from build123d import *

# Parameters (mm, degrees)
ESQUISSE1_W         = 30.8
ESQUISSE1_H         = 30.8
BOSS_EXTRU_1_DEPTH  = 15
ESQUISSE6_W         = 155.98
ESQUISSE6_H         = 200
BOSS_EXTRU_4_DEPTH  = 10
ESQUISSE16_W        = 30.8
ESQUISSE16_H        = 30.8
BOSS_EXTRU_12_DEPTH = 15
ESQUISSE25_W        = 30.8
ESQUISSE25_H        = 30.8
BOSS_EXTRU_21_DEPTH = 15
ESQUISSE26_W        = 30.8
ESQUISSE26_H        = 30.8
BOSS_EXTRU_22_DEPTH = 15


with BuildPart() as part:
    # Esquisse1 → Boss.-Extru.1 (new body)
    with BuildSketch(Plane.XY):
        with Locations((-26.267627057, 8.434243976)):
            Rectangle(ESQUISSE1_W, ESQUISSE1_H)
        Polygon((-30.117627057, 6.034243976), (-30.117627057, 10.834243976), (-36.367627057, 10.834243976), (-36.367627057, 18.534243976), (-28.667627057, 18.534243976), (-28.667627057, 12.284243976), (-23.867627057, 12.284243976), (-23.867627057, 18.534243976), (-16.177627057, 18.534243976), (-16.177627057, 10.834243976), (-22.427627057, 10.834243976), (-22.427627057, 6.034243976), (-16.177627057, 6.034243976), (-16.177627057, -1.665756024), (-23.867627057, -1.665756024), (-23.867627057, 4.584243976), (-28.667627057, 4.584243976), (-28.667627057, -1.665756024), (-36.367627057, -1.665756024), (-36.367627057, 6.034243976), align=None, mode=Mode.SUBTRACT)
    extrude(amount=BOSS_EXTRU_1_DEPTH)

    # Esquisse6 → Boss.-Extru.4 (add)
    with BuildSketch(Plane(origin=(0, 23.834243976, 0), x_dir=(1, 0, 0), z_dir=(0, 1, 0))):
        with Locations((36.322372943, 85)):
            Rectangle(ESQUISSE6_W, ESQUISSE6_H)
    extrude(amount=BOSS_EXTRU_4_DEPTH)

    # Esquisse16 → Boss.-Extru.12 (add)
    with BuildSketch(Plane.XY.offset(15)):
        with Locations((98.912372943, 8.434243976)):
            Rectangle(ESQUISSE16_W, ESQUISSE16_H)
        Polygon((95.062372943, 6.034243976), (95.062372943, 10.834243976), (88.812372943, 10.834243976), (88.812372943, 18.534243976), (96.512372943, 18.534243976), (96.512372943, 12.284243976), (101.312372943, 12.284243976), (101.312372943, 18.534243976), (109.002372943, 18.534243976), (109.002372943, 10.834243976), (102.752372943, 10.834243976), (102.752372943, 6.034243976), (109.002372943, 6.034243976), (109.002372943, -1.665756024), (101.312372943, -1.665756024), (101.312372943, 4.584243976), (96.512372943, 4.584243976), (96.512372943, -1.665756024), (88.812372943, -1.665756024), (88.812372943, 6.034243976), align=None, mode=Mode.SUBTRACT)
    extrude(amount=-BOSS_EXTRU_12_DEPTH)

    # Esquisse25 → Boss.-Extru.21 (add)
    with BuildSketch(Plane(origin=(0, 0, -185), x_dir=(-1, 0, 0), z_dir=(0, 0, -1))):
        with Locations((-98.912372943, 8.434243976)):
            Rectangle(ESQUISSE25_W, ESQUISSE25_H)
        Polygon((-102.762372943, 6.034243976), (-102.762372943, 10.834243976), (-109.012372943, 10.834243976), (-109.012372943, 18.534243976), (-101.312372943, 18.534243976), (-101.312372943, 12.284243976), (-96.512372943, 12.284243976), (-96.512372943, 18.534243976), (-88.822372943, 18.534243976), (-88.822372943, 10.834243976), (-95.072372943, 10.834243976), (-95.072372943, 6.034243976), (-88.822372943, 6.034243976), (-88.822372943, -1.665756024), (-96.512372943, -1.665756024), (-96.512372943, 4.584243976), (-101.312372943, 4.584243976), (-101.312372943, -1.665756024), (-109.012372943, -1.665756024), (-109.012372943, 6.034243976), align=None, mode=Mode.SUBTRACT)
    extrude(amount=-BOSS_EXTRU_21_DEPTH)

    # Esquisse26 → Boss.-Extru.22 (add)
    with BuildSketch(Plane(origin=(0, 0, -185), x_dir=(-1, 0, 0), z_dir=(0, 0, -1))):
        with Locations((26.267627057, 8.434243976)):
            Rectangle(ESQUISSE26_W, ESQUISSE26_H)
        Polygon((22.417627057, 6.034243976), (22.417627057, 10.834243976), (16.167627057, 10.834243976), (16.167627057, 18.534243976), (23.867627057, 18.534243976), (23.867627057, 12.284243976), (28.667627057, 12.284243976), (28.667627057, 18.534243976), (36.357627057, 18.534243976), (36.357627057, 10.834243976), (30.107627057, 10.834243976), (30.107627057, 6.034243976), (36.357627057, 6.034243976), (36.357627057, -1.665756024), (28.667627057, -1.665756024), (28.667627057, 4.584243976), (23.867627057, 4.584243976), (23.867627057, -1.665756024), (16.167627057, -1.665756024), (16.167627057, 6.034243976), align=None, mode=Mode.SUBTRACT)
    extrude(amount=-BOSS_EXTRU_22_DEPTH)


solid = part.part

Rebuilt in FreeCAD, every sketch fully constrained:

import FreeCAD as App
import Part
import Sketcher
from FreeCAD import Vector


def add_polygon(sketch, points):
    """Adds a closed chain of lines whose ends are joined by coincident constraints."""
    first, n = sketch.GeometryCount, len(points)
    for a, b in zip(points, points[1:] + points[:1]):
        sketch.addGeometry(Part.LineSegment(App.Vector(*a, 0), App.Vector(*b, 0)), False)
    for i in range(n):
        sketch.addConstraint(Sketcher.Constraint("Coincident", first + i, 2, first + (i + 1) % n, 1))

doc = App.newDocument("Part")
body = doc.addObject("PartDesign::Body", "Body")

# Sketch on XY plane
sketch1 = doc.addObject("Sketcher::SketchObject", "Sketch")
body.addObject(sketch1)
sketch1.AttachmentSupport = (doc.XY_Plane, [""])
sketch1.MapMode = "FlatFace"
add_polygon(sketch1, [(-41.7, 23.8), (-41.7, -7), (-10.9, -7), (-10.9, 23.8)])  # lines 0-3
add_polygon(sketch1, [(-36.4, 6), (-30.1, 6), (-30.1, 10.8), (-36.4, 10.8), (-36.4, 18.5), (-28.7, 18.5), (-28.7, 12.3), (-23.9, 12.3), (-23.9, 18.5), (-16.2, 18.5), (-16.2, 10.8), (-22.4, 10.8), (-22.4, 6), (-16.2, 6), (-16.2, -1.7), (-23.9, -1.7), (-23.9, 4.6), (-28.7, 4.6), (-28.7, -1.7), (-36.4, -1.7)])  # lines 4-23
sketch1.addConstraint(Sketcher.Constraint("Vertical", 0))
sketch1.addConstraint(Sketcher.Constraint("Horizontal", 1))
sketch1.addConstraint(Sketcher.Constraint("Vertical", 2))
sketch1.addConstraint(Sketcher.Constraint("Horizontal", 3))
sketch1.addConstraint(Sketcher.Constraint("Horizontal", 4))
sketch1.addConstraint(Sketcher.Constraint("Vertical", 5))
sketch1.addConstraint(Sketcher.Constraint("Horizontal", 6))
sketch1.addConstraint(Sketcher.Constraint("Vertical", 7))
sketch1.addConstraint(Sketcher.Constraint("Horizontal", 8))
sketch1.addConstraint(Sketcher.Constraint("Vertical", 9))
sketch1.addConstraint(Sketcher.Constraint("Horizontal", 10))
sketch1.addConstraint(Sketcher.Constraint("Vertical", 11))
sketch1.addConstraint(Sketcher.Constraint("Horizontal", 12))
sketch1.addConstraint(Sketcher.Constraint("Vertical", 13))
sketch1.addConstraint(Sketcher.Constraint("Horizontal", 14))
sketch1.addConstraint(Sketcher.Constraint("Vertical", 15))
sketch1.addConstraint(Sketcher.Constraint("Horizontal", 16))
sketch1.addConstraint(Sketcher.Constraint("Vertical", 17))
sketch1.addConstraint(Sketcher.Constraint("Horizontal", 18))
sketch1.addConstraint(Sketcher.Constraint("Vertical", 19))
sketch1.addConstraint(Sketcher.Constraint("Horizontal", 20))
sketch1.addConstraint(Sketcher.Constraint("Vertical", 21))
sketch1.addConstraint(Sketcher.Constraint("Horizontal", 22))
sketch1.addConstraint(Sketcher.Constraint("Vertical", 23))
sketch1.addConstraint(Sketcher.Constraint("Horizontal", 8, 2, 11, 2))
sketch1.addConstraint(Sketcher.Constraint("Horizontal", 6, 2, 13, 2))
sketch1.addConstraint(Sketcher.Constraint("Horizontal", 4, 2, 15, 2))
sketch1.addConstraint(Sketcher.Constraint("Horizontal", 18, 2, 21, 2))
sketch1.addConstraint(Sketcher.Constraint("Vertical", 13, 2, 16, 2))
sketch1.addConstraint(Sketcher.Constraint("Vertical", 11, 2, 18, 2))
sketch1.addConstraint(Sketcher.Constraint("Vertical", 9, 2, 20, 2))
sketch1.addConstraint(Sketcher.Constraint("Vertical", 7, 2, 22, 2))
sketch1.addConstraint(Sketcher.Constraint("Equal", 6, 14))
sketch1.addConstraint(Sketcher.Constraint("Equal", 3, 0))
sketch1.addConstraint(Sketcher.Constraint("Equal", 20, 5))
sketch1.addConstraint(Sketcher.Constraint("Equal", 22, 7))
sketch1.addConstraint(Sketcher.Constraint("Equal", 16, 9))
sketch1.addConstraint(Sketcher.Constraint("Equal", 13, 17))
sketch1.addConstraint(Sketcher.Constraint("Equal", 11, 19))
sketch1.addConstraint(Sketcher.Constraint("DistanceX", 1, 1, 1, 2, 30.8))
sketch1.addConstraint(Sketcher.Constraint("DistanceX", 8, 1, 8, 2, 7.7))
sketch1.addConstraint(Sketcher.Constraint("DistanceX", 10, 1, 10, 2, 4.8))
sketch1.addConstraint(Sketcher.Constraint("DistanceY", 0, 2, 4, 2, 13.0))
sketch1.addConstraint(Sketcher.Constraint("DistanceX", 3, 2, 8, 2, 13.0))
sketch1.addConstraint(Sketcher.Constraint("DistanceX", 4, 1, 4, 2, 6.25))
sketch1.addConstraint(Sketcher.Constraint("DistanceX", 12, 1, 12, 2, 7.69))
sketch1.addConstraint(Sketcher.Constraint("DistanceX", 0, 2, -1, 1, 41.667627))
sketch1.addConstraint(Sketcher.Constraint("DistanceY", 0, 2, -1, 1, 6.965756))
pad1 = doc.addObject("PartDesign::Pad", "Pad")
body.addObject(pad1)
pad1.Profile = sketch1
pad1.Length = 15

# Sketch on XZ plane
sketch2 = doc.addObject("Sketcher::SketchObject", "Sketch001")
body.addObject(sketch2)
sketch2.AttachmentSupport = (doc.XZ_Plane, [""])
sketch2.MapMode = "FlatFace"
sketch2.AttachmentOffset = App.Placement(Vector(0, 0, -23.834244), App.Rotation())
add_polygon(sketch2, [(-42, -185), (-42, 15), (114, 15), (114, -185)])  # lines 0-3
sketch2.addConstraint(Sketcher.Constraint("Vertical", 0))
sketch2.addConstraint(Sketcher.Constraint("Horizontal", 1))
sketch2.addConstraint(Sketcher.Constraint("Vertical", 2))
sketch2.addConstraint(Sketcher.Constraint("Horizontal", 3))
sketch2.addConstraint(Sketcher.Constraint("DistanceY", 0, 1, 0, 2, 200.0))
sketch2.addConstraint(Sketcher.Constraint("DistanceY", -1, 1, 0, 2, 15.0))
sketch2.addConstraint(Sketcher.Constraint("DistanceX", 1, 1, 1, 2, 155.98))
sketch2.addConstraint(Sketcher.Constraint("DistanceX", 0, 2, -1, 1, 41.667627))
pad2 = doc.addObject("PartDesign::Pad", "Pad001")
body.addObject(pad2)
pad2.Profile = sketch2
pad2.Length = 10
pad2.Reversed = True

# Sketch on XY plane
sketch3 = doc.addObject("Sketcher::SketchObject", "Sketch002")
body.addObject(sketch3)
sketch3.AttachmentSupport = (doc.XY_Plane, [""])
sketch3.MapMode = "FlatFace"
sketch3.AttachmentOffset = App.Placement(Vector(0, 0, 15), App.Rotation())
add_polygon(sketch3, [(83.5, 23.8), (83.5, -7), (114.3, -7), (114.3, 23.8)])  # lines 0-3
add_polygon(sketch3, [(88.8, 6), (95.1, 6), (95.1, 10.8), (88.8, 10.8), (88.8, 18.5), (96.5, 18.5), (96.5, 12.3), (101.3, 12.3), (101.3, 18.5), (109, 18.5), (109, 10.8), (102.8, 10.8), (102.8, 6), (109, 6), (109, -1.7), (101.3, -1.7), (101.3, 4.6), (96.5, 4.6), (96.5, -1.7), (88.8, -1.7)])  # lines 4-23
sketch3.addConstraint(Sketcher.Constraint("Vertical", 0))
sketch3.addConstraint(Sketcher.Constraint("Horizontal", 1))
sketch3.addConstraint(Sketcher.Constraint("Vertical", 2))
sketch3.addConstraint(Sketcher.Constraint("Horizontal", 3))
sketch3.addConstraint(Sketcher.Constraint("Horizontal", 4))
sketch3.addConstraint(Sketcher.Constraint("Vertical", 5))
sketch3.addConstraint(Sketcher.Constraint("Horizontal", 6))
sketch3.addConstraint(Sketcher.Constraint("Vertical", 7))
sketch3.addConstraint(Sketcher.Constraint("Horizontal", 8))
sketch3.addConstraint(Sketcher.Constraint("Vertical", 9))
sketch3.addConstraint(Sketcher.Constraint("Horizontal", 10))
sketch3.addConstraint(Sketcher.Constraint("Vertical", 11))
sketch3.addConstraint(Sketcher.Constraint("Horizontal", 12))
sketch3.addConstraint(Sketcher.Constraint("Vertical", 13))
sketch3.addConstraint(Sketcher.Constraint("Horizontal", 14))
sketch3.addConstraint(Sketcher.Constraint("Vertical", 15))
sketch3.addConstraint(Sketcher.Constraint("Horizontal", 16))
sketch3.addConstraint(Sketcher.Constraint("Vertical", 17))
sketch3.addConstraint(Sketcher.Constraint("Horizontal", 18))
sketch3.addConstraint(Sketcher.Constraint("Vertical", 19))
sketch3.addConstraint(Sketcher.Constraint("Horizontal", 20))
sketch3.addConstraint(Sketcher.Constraint("Vertical", 21))
sketch3.addConstraint(Sketcher.Constraint("Horizontal", 22))
sketch3.addConstraint(Sketcher.Constraint("Vertical", 23))
sketch3.addConstraint(Sketcher.Constraint("Horizontal", 8, 2, 11, 2))
sketch3.addConstraint(Sketcher.Constraint("Horizontal", 6, 2, 13, 2))
sketch3.addConstraint(Sketcher.Constraint("Horizontal", 4, 2, 15, 2))
sketch3.addConstraint(Sketcher.Constraint("Horizontal", 18, 2, 21, 2))
sketch3.addConstraint(Sketcher.Constraint("Vertical", 13, 2, 16, 2))
sketch3.addConstraint(Sketcher.Constraint("Vertical", 11, 2, 18, 2))
sketch3.addConstraint(Sketcher.Constraint("Vertical", 9, 2, 20, 2))
sketch3.addConstraint(Sketcher.Constraint("Vertical", 7, 2, 22, 2))
sketch3.addConstraint(Sketcher.Constraint("Equal", 6, 14))
sketch3.addConstraint(Sketcher.Constraint("Equal", 3, 0))
sketch3.addConstraint(Sketcher.Constraint("Equal", 20, 5))
sketch3.addConstraint(Sketcher.Constraint("Equal", 22, 7))
sketch3.addConstraint(Sketcher.Constraint("Equal", 16, 9))
sketch3.addConstraint(Sketcher.Constraint("Equal", 13, 17))
sketch3.addConstraint(Sketcher.Constraint("Equal", 11, 19))
sketch3.addConstraint(Sketcher.Constraint("DistanceX", 1, 1, 1, 2, 30.8))
sketch3.addConstraint(Sketcher.Constraint("DistanceX", 8, 1, 8, 2, 7.7))
sketch3.addConstraint(Sketcher.Constraint("DistanceX", 10, 1, 10, 2, 4.8))
sketch3.addConstraint(Sketcher.Constraint("DistanceY", 0, 2, 4, 2, 13.0))
sketch3.addConstraint(Sketcher.Constraint("DistanceX", 3, 2, 8, 2, 13.0))
sketch3.addConstraint(Sketcher.Constraint("DistanceX", 4, 1, 4, 2, 6.25))
sketch3.addConstraint(Sketcher.Constraint("DistanceX", 12, 1, 12, 2, 7.69))
sketch3.addConstraint(Sketcher.Constraint("DistanceX", -1, 1, 0, 2, 83.512373))
sketch3.addConstraint(Sketcher.Constraint("DistanceY", 0, 2, -1, 1, 6.965756))
pad3 = doc.addObject("PartDesign::Pad", "Pad002")
body.addObject(pad3)
pad3.Profile = sketch3
pad3.Length = 15
pad3.Reversed = True

# Sketch on XY plane
sketch4 = doc.addObject("Sketcher::SketchObject", "Sketch003")
body.addObject(sketch4)
sketch4.AttachmentSupport = (doc.XY_Plane, [""])
sketch4.MapMode = "FlatFace"
sketch4.AttachmentOffset = App.Placement(Vector(0, 0, -185), App.Rotation())
add_polygon(sketch4, [(114.3, 23.8), (114.3, -7), (83.5, -7), (83.5, 23.8)])  # lines 0-3
add_polygon(sketch4, [(109, 6), (102.8, 6), (102.8, 10.8), (109, 10.8), (109, 18.5), (101.3, 18.5), (101.3, 12.3), (96.5, 12.3), (96.5, 18.5), (88.8, 18.5), (88.8, 10.8), (95.1, 10.8), (95.1, 6), (88.8, 6), (88.8, -1.7), (96.5, -1.7), (96.5, 4.6), (101.3, 4.6), (101.3, -1.7), (109, -1.7)])  # lines 4-23
sketch4.addConstraint(Sketcher.Constraint("Vertical", 0))
sketch4.addConstraint(Sketcher.Constraint("Horizontal", 1))
sketch4.addConstraint(Sketcher.Constraint("Vertical", 2))
sketch4.addConstraint(Sketcher.Constraint("Horizontal", 3))
sketch4.addConstraint(Sketcher.Constraint("Horizontal", 4))
sketch4.addConstraint(Sketcher.Constraint("Vertical", 5))
sketch4.addConstraint(Sketcher.Constraint("Horizontal", 6))
sketch4.addConstraint(Sketcher.Constraint("Vertical", 7))
sketch4.addConstraint(Sketcher.Constraint("Horizontal", 8))
sketch4.addConstraint(Sketcher.Constraint("Vertical", 9))
sketch4.addConstraint(Sketcher.Constraint("Horizontal", 10))
sketch4.addConstraint(Sketcher.Constraint("Vertical", 11))
sketch4.addConstraint(Sketcher.Constraint("Horizontal", 12))
sketch4.addConstraint(Sketcher.Constraint("Vertical", 13))
sketch4.addConstraint(Sketcher.Constraint("Horizontal", 14))
sketch4.addConstraint(Sketcher.Constraint("Vertical", 15))
sketch4.addConstraint(Sketcher.Constraint("Horizontal", 16))
sketch4.addConstraint(Sketcher.Constraint("Vertical", 17))
sketch4.addConstraint(Sketcher.Constraint("Horizontal", 18))
sketch4.addConstraint(Sketcher.Constraint("Vertical", 19))
sketch4.addConstraint(Sketcher.Constraint("Horizontal", 20))
sketch4.addConstraint(Sketcher.Constraint("Vertical", 21))
sketch4.addConstraint(Sketcher.Constraint("Horizontal", 22))
sketch4.addConstraint(Sketcher.Constraint("Vertical", 23))
sketch4.addConstraint(Sketcher.Constraint("Horizontal", 8, 2, 11, 2))
sketch4.addConstraint(Sketcher.Constraint("Horizontal", 6, 2, 13, 2))
sketch4.addConstraint(Sketcher.Constraint("Horizontal", 4, 2, 15, 2))
sketch4.addConstraint(Sketcher.Constraint("Horizontal", 18, 2, 21, 2))
sketch4.addConstraint(Sketcher.Constraint("Vertical", 13, 2, 16, 2))
sketch4.addConstraint(Sketcher.Constraint("Vertical", 11, 2, 18, 2))
sketch4.addConstraint(Sketcher.Constraint("Vertical", 9, 2, 20, 2))
sketch4.addConstraint(Sketcher.Constraint("Vertical", 7, 2, 22, 2))
sketch4.addConstraint(Sketcher.Constraint("Equal", 6, 14))
sketch4.addConstraint(Sketcher.Constraint("Equal", 3, 0))
sketch4.addConstraint(Sketcher.Constraint("Equal", 20, 5))
sketch4.addConstraint(Sketcher.Constraint("Equal", 22, 7))
sketch4.addConstraint(Sketcher.Constraint("Equal", 16, 9))
sketch4.addConstraint(Sketcher.Constraint("Equal", 13, 17))
sketch4.addConstraint(Sketcher.Constraint("Equal", 11, 19))
sketch4.addConstraint(Sketcher.Constraint("DistanceX", 1, 2, 1, 1, 30.8))
sketch4.addConstraint(Sketcher.Constraint("DistanceX", 8, 2, 8, 1, 7.7))
sketch4.addConstraint(Sketcher.Constraint("DistanceX", 10, 2, 10, 1, 4.8))
sketch4.addConstraint(Sketcher.Constraint("DistanceY", 0, 2, 4, 2, 13.0))
sketch4.addConstraint(Sketcher.Constraint("DistanceX", 8, 2, 3, 2, 13.0))
sketch4.addConstraint(Sketcher.Constraint("DistanceX", 4, 2, 4, 1, 6.25))
sketch4.addConstraint(Sketcher.Constraint("DistanceX", 12, 2, 12, 1, 7.69))
sketch4.addConstraint(Sketcher.Constraint("DistanceX", -1, 1, 0, 2, 114.312373))
sketch4.addConstraint(Sketcher.Constraint("DistanceY", 0, 2, -1, 1, 6.965756))
pad4 = doc.addObject("PartDesign::Pad", "Pad003")
body.addObject(pad4)
pad4.Profile = sketch4
pad4.Length = 15

# Sketch on XY plane
sketch5 = doc.addObject("Sketcher::SketchObject", "Sketch004")
body.addObject(sketch5)
sketch5.AttachmentSupport = (doc.XY_Plane, [""])
sketch5.MapMode = "FlatFace"
sketch5.AttachmentOffset = App.Placement(Vector(0, 0, -185), App.Rotation())
add_polygon(sketch5, [(-10.9, 23.8), (-10.9, -7), (-41.7, -7), (-41.7, 23.8)])  # lines 0-3
add_polygon(sketch5, [(-16.2, 6), (-22.4, 6), (-22.4, 10.8), (-16.2, 10.8), (-16.2, 18.5), (-23.9, 18.5), (-23.9, 12.3), (-28.7, 12.3), (-28.7, 18.5), (-36.4, 18.5), (-36.4, 10.8), (-30.1, 10.8), (-30.1, 6), (-36.4, 6), (-36.4, -1.7), (-28.7, -1.7), (-28.7, 4.6), (-23.9, 4.6), (-23.9, -1.7), (-16.2, -1.7)])  # lines 4-23
sketch5.addConstraint(Sketcher.Constraint("Vertical", 0))
sketch5.addConstraint(Sketcher.Constraint("Horizontal", 1))
sketch5.addConstraint(Sketcher.Constraint("Vertical", 2))
sketch5.addConstraint(Sketcher.Constraint("Horizontal", 3))
sketch5.addConstraint(Sketcher.Constraint("Horizontal", 4))
sketch5.addConstraint(Sketcher.Constraint("Vertical", 5))
sketch5.addConstraint(Sketcher.Constraint("Horizontal", 6))
sketch5.addConstraint(Sketcher.Constraint("Vertical", 7))
sketch5.addConstraint(Sketcher.Constraint("Horizontal", 8))
sketch5.addConstraint(Sketcher.Constraint("Vertical", 9))
sketch5.addConstraint(Sketcher.Constraint("Horizontal", 10))
sketch5.addConstraint(Sketcher.Constraint("Vertical", 11))
sketch5.addConstraint(Sketcher.Constraint("Horizontal", 12))
sketch5.addConstraint(Sketcher.Constraint("Vertical", 13))
sketch5.addConstraint(Sketcher.Constraint("Horizontal", 14))
sketch5.addConstraint(Sketcher.Constraint("Vertical", 15))
sketch5.addConstraint(Sketcher.Constraint("Horizontal", 16))
sketch5.addConstraint(Sketcher.Constraint("Vertical", 17))
sketch5.addConstraint(Sketcher.Constraint("Horizontal", 18))
sketch5.addConstraint(Sketcher.Constraint("Vertical", 19))
sketch5.addConstraint(Sketcher.Constraint("Horizontal", 20))
sketch5.addConstraint(Sketcher.Constraint("Vertical", 21))
sketch5.addConstraint(Sketcher.Constraint("Horizontal", 22))
sketch5.addConstraint(Sketcher.Constraint("Vertical", 23))
sketch5.addConstraint(Sketcher.Constraint("Horizontal", 8, 2, 11, 2))
sketch5.addConstraint(Sketcher.Constraint("Horizontal", 6, 2, 13, 2))
sketch5.addConstraint(Sketcher.Constraint("Horizontal", 4, 2, 15, 2))
sketch5.addConstraint(Sketcher.Constraint("Horizontal", 18, 2, 21, 2))
sketch5.addConstraint(Sketcher.Constraint("Vertical", 13, 2, 16, 2))
sketch5.addConstraint(Sketcher.Constraint("Vertical", 11, 2, 18, 2))
sketch5.addConstraint(Sketcher.Constraint("Vertical", 9, 2, 20, 2))
sketch5.addConstraint(Sketcher.Constraint("Vertical", 7, 2, 22, 2))
sketch5.addConstraint(Sketcher.Constraint("Equal", 6, 14))
sketch5.addConstraint(Sketcher.Constraint("Equal", 3, 0))
sketch5.addConstraint(Sketcher.Constraint("Equal", 20, 5))
sketch5.addConstraint(Sketcher.Constraint("Equal", 22, 7))
sketch5.addConstraint(Sketcher.Constraint("Equal", 16, 9))
sketch5.addConstraint(Sketcher.Constraint("Equal", 13, 17))
sketch5.addConstraint(Sketcher.Constraint("Equal", 11, 19))
sketch5.addConstraint(Sketcher.Constraint("DistanceX", 1, 2, 1, 1, 30.8))
sketch5.addConstraint(Sketcher.Constraint("DistanceX", 8, 2, 8, 1, 7.7))
sketch5.addConstraint(Sketcher.Constraint("DistanceX", 10, 2, 10, 1, 4.8))
sketch5.addConstraint(Sketcher.Constraint("DistanceY", 0, 2, 4, 2, 13.0))
sketch5.addConstraint(Sketcher.Constraint("DistanceX", 8, 2, 3, 2, 13.0))
sketch5.addConstraint(Sketcher.Constraint("DistanceX", 4, 2, 4, 1, 6.25))
sketch5.addConstraint(Sketcher.Constraint("DistanceX", 12, 2, 12, 1, 7.69))
sketch5.addConstraint(Sketcher.Constraint("DistanceX", 0, 2, -1, 1, 10.867627))
sketch5.addConstraint(Sketcher.Constraint("DistanceY", 0, 2, -1, 1, 6.965756))
pad5 = doc.addObject("PartDesign::Pad", "Pad004")
body.addObject(pad5)
pad5.Profile = sketch5
pad5.Length = 15

doc.recompute()
